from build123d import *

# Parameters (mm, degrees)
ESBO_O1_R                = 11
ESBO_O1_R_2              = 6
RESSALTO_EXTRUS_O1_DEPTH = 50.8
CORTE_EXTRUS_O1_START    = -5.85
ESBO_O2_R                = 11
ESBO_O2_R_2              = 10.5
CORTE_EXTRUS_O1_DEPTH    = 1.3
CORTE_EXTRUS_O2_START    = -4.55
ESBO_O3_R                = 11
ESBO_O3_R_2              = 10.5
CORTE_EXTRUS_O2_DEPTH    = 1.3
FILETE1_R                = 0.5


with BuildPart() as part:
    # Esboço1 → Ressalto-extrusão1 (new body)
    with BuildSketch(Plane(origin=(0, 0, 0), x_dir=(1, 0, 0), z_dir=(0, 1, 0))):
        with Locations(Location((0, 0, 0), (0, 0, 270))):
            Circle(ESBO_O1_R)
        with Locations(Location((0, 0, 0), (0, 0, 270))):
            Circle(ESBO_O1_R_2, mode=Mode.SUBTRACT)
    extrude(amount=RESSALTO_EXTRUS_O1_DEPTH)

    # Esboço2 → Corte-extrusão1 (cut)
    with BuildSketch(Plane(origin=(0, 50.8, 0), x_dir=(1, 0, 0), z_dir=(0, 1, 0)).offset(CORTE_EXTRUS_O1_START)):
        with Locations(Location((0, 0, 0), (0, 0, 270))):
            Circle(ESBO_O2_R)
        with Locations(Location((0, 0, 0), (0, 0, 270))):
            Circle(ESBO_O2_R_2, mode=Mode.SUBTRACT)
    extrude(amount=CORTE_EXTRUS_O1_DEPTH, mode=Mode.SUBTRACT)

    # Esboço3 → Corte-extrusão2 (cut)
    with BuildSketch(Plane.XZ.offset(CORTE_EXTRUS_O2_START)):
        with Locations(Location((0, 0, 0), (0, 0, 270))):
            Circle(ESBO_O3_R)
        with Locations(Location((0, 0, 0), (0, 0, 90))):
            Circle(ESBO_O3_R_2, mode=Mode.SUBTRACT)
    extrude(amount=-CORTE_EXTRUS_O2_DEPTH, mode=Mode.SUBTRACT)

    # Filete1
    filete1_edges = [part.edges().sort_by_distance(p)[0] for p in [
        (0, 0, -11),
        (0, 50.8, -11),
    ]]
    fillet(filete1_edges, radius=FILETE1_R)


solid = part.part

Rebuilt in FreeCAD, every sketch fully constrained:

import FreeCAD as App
import Part
import Sketcher
Q = App.Units.Quantity


def edges_at(feature, points):
    """Names of the edges that pass closest to the given points."""
    edges = feature.Shape.Edges
    near = lambda p: min(range(len(edges)), key=lambda i: edges[i].distToShape(Part.Vertex(*p))[0])
    return sorted({f"Edge{near(p) + 1}" for p in points})

doc = App.newDocument("Part")
body = doc.addObject("PartDesign::Body", "Body")

# Sketch on XZ plane
sketch1 = doc.addObject("Sketcher::SketchObject", "Sketch")
body.addObject(sketch1)
sketch1.AttachmentSupport = (doc.XZ_Plane, [""])
sketch1.MapMode = "FlatFace"
sketch1.addGeometry([
    Part.Circle(App.Vector(0, 0, 0), App.Vector(0, 0, 1), 11),
    Part.Circle(App.Vector(0, 0, 0), App.Vector(0, 0, 1), 6),
], False)
sketch1.addConstraint([
    Sketcher.Constraint("Coincident", 0, 3, -1, 1),
    Sketcher.Constraint("Coincident", 1, 3, -1, 1),
    Sketcher.Constraint("Diameter", 0, Q("22 mm")),
    Sketcher.Constraint("Diameter", 1, Q("12 mm")),
])
pad1 = doc.addObject("PartDesign::Pad", "Pad")
body.addObject(pad1)
pad1.Profile = sketch1
pad1.Length = 50.8
pad1.Reversed = True

# Sketch on XZ plane
sketch2 = doc.addObject("Sketcher::SketchObject", "Sketch001")
body.addObject(sketch2)
sketch2.AttachmentSupport = (doc.XZ_Plane, [""])
sketch2.MapMode = "FlatFace"
sketch2.AttachmentOffset = App.Placement(App.Vector(0, 0, -44.95), App.Rotation())
sketch2.addGeometry([
    Part.Circle(App.Vector(0, 0, 0), App.Vector(0, 0, 1), 11),
    Part.Circle(App.Vector(0, 0, 0), App.Vector(0, 0, 1), 10),
], False)
sketch2.addConstraint([
    Sketcher.Constraint("Coincident", 0, 3, -1, 1),
    Sketcher.Constraint("Coincident", 1, 3, -1, 1),
    Sketcher.Constraint("Diameter", 0, Q("22 mm")),
    Sketcher.Constraint("Diameter", 1, Q("21 mm")),
])
pocket1 = doc.addObject("PartDesign::Pocket", "Pocket")
body.addObject(pocket1)
pocket1.Profile = sketch2
pocket1.Length = 1.3

# Sketch on XZ plane
sketch3 = doc.addObject("Sketcher::SketchObject", "Sketch002")
body.addObject(sketch3)
sketch3.AttachmentSupport = (doc.XZ_Plane, [""])
sketch3.MapMode = "FlatFace"
sketch3.AttachmentOffset = App.Placement(App.Vector(0, 0, -4.55), App.Rotation())
sketch3.addGeometry([
    Part.Circle(App.Vector(0, 0, 0), App.Vector(0, 0, 1), 11),
    Part.Circle(App.Vector(0, 0, 0), App.Vector(0, 0, 1), 10),
], False)
sketch3.addConstraint([
    Sketcher.Constraint("Coincident", 0, 3, -1, 1),
    Sketcher.Constraint("Coincident", 1, 3, -1, 1),
    Sketcher.Constraint("Diameter", 0, Q("22 mm")),
    Sketcher.Constraint("Diameter", 1, Q("21 mm")),
])
pocket2 = doc.addObject("PartDesign::Pocket", "Pocket001")
body.addObject(pocket2)
pocket2.Profile = sketch3
pocket2.Length = 1.3
doc.recompute()

fillet = doc.addObject("PartDesign::Fillet", "Fillet")
body.addObject(fillet)
fillet.Base = (pocket2, edges_at(pocket2, [(0, 0, -11), (0, 50.8, -11)]))
fillet.Radius = 0.5

doc.recompute()
